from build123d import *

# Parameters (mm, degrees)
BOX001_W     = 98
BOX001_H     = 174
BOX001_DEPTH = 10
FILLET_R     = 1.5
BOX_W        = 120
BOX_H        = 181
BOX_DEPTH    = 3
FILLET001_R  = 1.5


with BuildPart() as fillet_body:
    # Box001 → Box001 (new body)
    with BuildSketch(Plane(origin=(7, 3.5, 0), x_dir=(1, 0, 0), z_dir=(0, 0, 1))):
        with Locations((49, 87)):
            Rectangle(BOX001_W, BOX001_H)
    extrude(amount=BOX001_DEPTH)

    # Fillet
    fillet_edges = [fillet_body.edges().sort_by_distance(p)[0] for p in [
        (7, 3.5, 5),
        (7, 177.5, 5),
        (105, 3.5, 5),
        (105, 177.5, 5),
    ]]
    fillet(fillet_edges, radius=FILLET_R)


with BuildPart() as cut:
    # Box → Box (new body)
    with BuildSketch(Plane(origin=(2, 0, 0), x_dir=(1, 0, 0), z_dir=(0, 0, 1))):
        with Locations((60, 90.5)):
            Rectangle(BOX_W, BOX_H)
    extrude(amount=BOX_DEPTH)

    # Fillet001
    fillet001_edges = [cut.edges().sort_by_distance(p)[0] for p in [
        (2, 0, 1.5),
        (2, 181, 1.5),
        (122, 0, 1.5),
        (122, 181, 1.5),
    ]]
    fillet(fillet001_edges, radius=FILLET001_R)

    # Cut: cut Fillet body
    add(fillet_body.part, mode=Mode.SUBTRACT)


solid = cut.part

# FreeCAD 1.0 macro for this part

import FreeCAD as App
import Part
import Sketcher
from FreeCAD import Vector
Q = App.Units.Quantity


def edges_at(feature, points):
    """Names of the edges that pass closest to the given points."""
    edges = feature.Shape.Edges
    near = lambda p: min(range(len(edges)), key=lambda i: edges[i].distToShape(Part.Vertex(*p))[0])
    return sorted({f"Edge{near(p) + 1}" for p in points})


def add_polygon(sketch, points):
    """Adds a closed chain of lines whose ends are joined by coincident constraints."""
    first, n = sketch.GeometryCount, len(points)
    for a, b in zip(points, points[1:] + points[:1]):
        sketch.addGeometry(Part.LineSegment(App.Vector(*a, 0), App.Vector(*b, 0)), False)
    for i in range(n):
        sketch.addConstraint(Sketcher.Constraint("Coincident", first + i, 2, first + (i + 1) % n, 1))

doc = App.newDocument("Part")
body = doc.addObject("PartDesign::Body", "Body")

# Sketch on XY plane
sketch1 = doc.addObject("Sketcher::SketchObject", "Sketch")
body.addObject(sketch1)
sketch1.AttachmentSupport = (doc.XY_Plane, [""])
sketch1.MapMode = "FlatFace"
add_polygon(sketch1, [(7, 178), (7, 4), (105, 4), (105, 178)])  # lines 0-3
sketch1.addConstraint(Sketcher.Constraint("Vertical", 0))
sketch1.addConstraint(Sketcher.Constraint("Horizontal", 1))
sketch1.addConstraint(Sketcher.Constraint("Vertical", 2))
sketch1.addConstraint(Sketcher.Constraint("Horizontal", 3))
sketch1.addConstraint(Sketcher.Constraint("DistanceX", 1, 1, 1, 2, Q("98 mm")))
sketch1.addConstraint(Sketcher.Constraint("DistanceY", 0, 2, 0, 1, Q("174 mm")))
sketch1.addConstraint(Sketcher.Constraint("DistanceX", -1, 1, 0, 2, Q("7 mm")))
sketch1.addConstraint(Sketcher.Constraint("DistanceY", -1, 1, 0, 2, Q("3.5 mm")))
pad1 = doc.addObject("PartDesign::Pad", "Pad")
body.addObject(pad1)
pad1.Profile = sketch1
pad1.Length = 10
doc.recompute()

fillet = doc.addObject("PartDesign::Fillet", "Fillet")
body.addObject(fillet)
fillet.Base = (pad1, edges_at(pad1, [
    (7, 3.5, 5),
    (7, 177.5, 5),
    (105, 3.5, 5),
    (105, 177.5, 5),
]))
fillet.Radius = 1.5
body2 = doc.addObject("PartDesign::Body", "Body001")

# Sketch on XY plane
sketch2 = doc.addObject("Sketcher::SketchObject", "Sketch001")
body2.addObject(sketch2)
sketch2.AttachmentSupport = (doc.getObject("XY_Plane001"), [""])
sketch2.MapMode = "FlatFace"
add_polygon(sketch2, [(2, 181), (2, 0), (122, 0), (122, 181)])  # lines 0-3
sketch2.addConstraint(Sketcher.Constraint("Vertical", 0))
sketch2.addConstraint(Sketcher.Constraint("Horizontal", 1))
sketch2.addConstraint(Sketcher.Constraint("Vertical", 2))
sketch2.addConstraint(Sketcher.Constraint("Horizontal", 3))
sketch2.addConstraint(Sketcher.Constraint("PointOnObject", 0, 2, -1))
sketch2.addConstraint(Sketcher.Constraint("DistanceX", 1, 1, 1, 2, Q("120 mm")))
sketch2.addConstraint(Sketcher.Constraint("DistanceY", 0, 2, 0, 1, Q("181 mm")))
sketch2.addConstraint(Sketcher.Constraint("DistanceX", -1, 1, 0, 2, Q("2 mm")))
pad2 = doc.addObject("PartDesign::Pad", "Pad001")
body2.addObject(pad2)
pad2.Profile = sketch2
pad2.Length = 3
doc.recompute()

fillet2 = doc.addObject("PartDesign::Fillet", "Fillet001")
body2.addObject(fillet2)
fillet2.Base = (pad2, edges_at(pad2, [
    (2, 0, 1.5),
    (2, 181, 1.5),
    (122, 0, 1.5),
    (122, 181, 1.5),
]))
fillet2.Radius = 1.5
doc.recompute()

boolean = doc.addObject("PartDesign::Boolean", "Boolean")
body2.addObject(boolean)
boolean.Type = "Cut"
boolean.addObjects([body])

doc.recompute()
